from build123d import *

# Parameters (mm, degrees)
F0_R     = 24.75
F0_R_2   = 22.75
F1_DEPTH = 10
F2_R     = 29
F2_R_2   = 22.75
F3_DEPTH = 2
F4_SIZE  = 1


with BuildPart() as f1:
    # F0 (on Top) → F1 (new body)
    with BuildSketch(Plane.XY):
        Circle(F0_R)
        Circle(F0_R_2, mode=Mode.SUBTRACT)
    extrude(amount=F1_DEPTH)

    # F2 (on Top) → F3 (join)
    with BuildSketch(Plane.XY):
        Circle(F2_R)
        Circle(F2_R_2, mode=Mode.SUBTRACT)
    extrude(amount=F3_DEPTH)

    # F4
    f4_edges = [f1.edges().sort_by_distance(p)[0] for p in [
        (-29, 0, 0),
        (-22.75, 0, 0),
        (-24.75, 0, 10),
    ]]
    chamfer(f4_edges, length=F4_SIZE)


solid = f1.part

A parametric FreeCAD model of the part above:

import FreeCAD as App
import Part
import Sketcher


def edges_at(feature, points):
    """Names of the edges that pass closest to the given points."""
    edges = feature.Shape.Edges
    near = lambda p: min(range(len(edges)), key=lambda i: edges[i].distToShape(Part.Vertex(*p))[0])
    return sorted({f"Edge{near(p) + 1}" for p in points})

doc = App.newDocument("Part")
body = doc.addObject("PartDesign::Body", "Body")

sketch1 = doc.addObject("Sketcher::SketchObject", "Sketch")
body.addObject(sketch1)
sketch1.AttachmentSupport = (doc.XY_Plane, [""])
sketch1.MapMode = "FlatFace"
sketch1.addGeometry([
    Part.Circle(App.Vector(0, 0, 0), App.Vector(0, 0, 1), 25),
    Part.Circle(App.Vector(0, 0, 0), App.Vector(0, 0, 1), 23),
], False)
sketch1.addConstraint([
    Sketcher.Constraint("Coincident", 0, 3, -1, 1),
    Sketcher.Constraint("Coincident", 1, 3, -1, 1),
    Sketcher.Constraint("Diameter", 0, 49.5),
    Sketcher.Constraint("Diameter", 1, 45.5),
])
pad1 = doc.addObject("PartDesign::Pad", "Pad")
body.addObject(pad1)
pad1.Profile = sketch1
pad1.Length = 10

sketch2 = doc.addObject("Sketcher::SketchObject", "Sketch001")
body.addObject(sketch2)
sketch2.AttachmentSupport = (doc.XY_Plane, [""])
sketch2.MapMode = "FlatFace"
sketch2.addGeometry([
    Part.Circle(App.Vector(0, 0, 0), App.Vector(0, 0, 1), 29),
    Part.Circle(App.Vector(0, 0, 0), App.Vector(0, 0, 1), 23),
], False)
sketch2.addConstraint([
    Sketcher.Constraint("Coincident", 0, 3, -1, 1),
    Sketcher.Constraint("Coincident", 1, 3, -1, 1),
    Sketcher.Constraint("Diameter", 0, 58.0),
    Sketcher.Constraint("Diameter", 1, 45.5),
])
pad2 = doc.addObject("PartDesign::Pad", "Pad001")
body.addObject(pad2)
pad2.Profile = sketch2
pad2.Length = 2
doc.recompute()

chamfer = doc.addObject("PartDesign::Chamfer", "Chamfer")
body.addObject(chamfer)
chamfer.Base = (pad2, edges_at(pad2, [(-29, 0, 0), (-22.75, 0, 0), (-24.75, 0, 10)]))
chamfer.Size = 1

doc.recompute()
